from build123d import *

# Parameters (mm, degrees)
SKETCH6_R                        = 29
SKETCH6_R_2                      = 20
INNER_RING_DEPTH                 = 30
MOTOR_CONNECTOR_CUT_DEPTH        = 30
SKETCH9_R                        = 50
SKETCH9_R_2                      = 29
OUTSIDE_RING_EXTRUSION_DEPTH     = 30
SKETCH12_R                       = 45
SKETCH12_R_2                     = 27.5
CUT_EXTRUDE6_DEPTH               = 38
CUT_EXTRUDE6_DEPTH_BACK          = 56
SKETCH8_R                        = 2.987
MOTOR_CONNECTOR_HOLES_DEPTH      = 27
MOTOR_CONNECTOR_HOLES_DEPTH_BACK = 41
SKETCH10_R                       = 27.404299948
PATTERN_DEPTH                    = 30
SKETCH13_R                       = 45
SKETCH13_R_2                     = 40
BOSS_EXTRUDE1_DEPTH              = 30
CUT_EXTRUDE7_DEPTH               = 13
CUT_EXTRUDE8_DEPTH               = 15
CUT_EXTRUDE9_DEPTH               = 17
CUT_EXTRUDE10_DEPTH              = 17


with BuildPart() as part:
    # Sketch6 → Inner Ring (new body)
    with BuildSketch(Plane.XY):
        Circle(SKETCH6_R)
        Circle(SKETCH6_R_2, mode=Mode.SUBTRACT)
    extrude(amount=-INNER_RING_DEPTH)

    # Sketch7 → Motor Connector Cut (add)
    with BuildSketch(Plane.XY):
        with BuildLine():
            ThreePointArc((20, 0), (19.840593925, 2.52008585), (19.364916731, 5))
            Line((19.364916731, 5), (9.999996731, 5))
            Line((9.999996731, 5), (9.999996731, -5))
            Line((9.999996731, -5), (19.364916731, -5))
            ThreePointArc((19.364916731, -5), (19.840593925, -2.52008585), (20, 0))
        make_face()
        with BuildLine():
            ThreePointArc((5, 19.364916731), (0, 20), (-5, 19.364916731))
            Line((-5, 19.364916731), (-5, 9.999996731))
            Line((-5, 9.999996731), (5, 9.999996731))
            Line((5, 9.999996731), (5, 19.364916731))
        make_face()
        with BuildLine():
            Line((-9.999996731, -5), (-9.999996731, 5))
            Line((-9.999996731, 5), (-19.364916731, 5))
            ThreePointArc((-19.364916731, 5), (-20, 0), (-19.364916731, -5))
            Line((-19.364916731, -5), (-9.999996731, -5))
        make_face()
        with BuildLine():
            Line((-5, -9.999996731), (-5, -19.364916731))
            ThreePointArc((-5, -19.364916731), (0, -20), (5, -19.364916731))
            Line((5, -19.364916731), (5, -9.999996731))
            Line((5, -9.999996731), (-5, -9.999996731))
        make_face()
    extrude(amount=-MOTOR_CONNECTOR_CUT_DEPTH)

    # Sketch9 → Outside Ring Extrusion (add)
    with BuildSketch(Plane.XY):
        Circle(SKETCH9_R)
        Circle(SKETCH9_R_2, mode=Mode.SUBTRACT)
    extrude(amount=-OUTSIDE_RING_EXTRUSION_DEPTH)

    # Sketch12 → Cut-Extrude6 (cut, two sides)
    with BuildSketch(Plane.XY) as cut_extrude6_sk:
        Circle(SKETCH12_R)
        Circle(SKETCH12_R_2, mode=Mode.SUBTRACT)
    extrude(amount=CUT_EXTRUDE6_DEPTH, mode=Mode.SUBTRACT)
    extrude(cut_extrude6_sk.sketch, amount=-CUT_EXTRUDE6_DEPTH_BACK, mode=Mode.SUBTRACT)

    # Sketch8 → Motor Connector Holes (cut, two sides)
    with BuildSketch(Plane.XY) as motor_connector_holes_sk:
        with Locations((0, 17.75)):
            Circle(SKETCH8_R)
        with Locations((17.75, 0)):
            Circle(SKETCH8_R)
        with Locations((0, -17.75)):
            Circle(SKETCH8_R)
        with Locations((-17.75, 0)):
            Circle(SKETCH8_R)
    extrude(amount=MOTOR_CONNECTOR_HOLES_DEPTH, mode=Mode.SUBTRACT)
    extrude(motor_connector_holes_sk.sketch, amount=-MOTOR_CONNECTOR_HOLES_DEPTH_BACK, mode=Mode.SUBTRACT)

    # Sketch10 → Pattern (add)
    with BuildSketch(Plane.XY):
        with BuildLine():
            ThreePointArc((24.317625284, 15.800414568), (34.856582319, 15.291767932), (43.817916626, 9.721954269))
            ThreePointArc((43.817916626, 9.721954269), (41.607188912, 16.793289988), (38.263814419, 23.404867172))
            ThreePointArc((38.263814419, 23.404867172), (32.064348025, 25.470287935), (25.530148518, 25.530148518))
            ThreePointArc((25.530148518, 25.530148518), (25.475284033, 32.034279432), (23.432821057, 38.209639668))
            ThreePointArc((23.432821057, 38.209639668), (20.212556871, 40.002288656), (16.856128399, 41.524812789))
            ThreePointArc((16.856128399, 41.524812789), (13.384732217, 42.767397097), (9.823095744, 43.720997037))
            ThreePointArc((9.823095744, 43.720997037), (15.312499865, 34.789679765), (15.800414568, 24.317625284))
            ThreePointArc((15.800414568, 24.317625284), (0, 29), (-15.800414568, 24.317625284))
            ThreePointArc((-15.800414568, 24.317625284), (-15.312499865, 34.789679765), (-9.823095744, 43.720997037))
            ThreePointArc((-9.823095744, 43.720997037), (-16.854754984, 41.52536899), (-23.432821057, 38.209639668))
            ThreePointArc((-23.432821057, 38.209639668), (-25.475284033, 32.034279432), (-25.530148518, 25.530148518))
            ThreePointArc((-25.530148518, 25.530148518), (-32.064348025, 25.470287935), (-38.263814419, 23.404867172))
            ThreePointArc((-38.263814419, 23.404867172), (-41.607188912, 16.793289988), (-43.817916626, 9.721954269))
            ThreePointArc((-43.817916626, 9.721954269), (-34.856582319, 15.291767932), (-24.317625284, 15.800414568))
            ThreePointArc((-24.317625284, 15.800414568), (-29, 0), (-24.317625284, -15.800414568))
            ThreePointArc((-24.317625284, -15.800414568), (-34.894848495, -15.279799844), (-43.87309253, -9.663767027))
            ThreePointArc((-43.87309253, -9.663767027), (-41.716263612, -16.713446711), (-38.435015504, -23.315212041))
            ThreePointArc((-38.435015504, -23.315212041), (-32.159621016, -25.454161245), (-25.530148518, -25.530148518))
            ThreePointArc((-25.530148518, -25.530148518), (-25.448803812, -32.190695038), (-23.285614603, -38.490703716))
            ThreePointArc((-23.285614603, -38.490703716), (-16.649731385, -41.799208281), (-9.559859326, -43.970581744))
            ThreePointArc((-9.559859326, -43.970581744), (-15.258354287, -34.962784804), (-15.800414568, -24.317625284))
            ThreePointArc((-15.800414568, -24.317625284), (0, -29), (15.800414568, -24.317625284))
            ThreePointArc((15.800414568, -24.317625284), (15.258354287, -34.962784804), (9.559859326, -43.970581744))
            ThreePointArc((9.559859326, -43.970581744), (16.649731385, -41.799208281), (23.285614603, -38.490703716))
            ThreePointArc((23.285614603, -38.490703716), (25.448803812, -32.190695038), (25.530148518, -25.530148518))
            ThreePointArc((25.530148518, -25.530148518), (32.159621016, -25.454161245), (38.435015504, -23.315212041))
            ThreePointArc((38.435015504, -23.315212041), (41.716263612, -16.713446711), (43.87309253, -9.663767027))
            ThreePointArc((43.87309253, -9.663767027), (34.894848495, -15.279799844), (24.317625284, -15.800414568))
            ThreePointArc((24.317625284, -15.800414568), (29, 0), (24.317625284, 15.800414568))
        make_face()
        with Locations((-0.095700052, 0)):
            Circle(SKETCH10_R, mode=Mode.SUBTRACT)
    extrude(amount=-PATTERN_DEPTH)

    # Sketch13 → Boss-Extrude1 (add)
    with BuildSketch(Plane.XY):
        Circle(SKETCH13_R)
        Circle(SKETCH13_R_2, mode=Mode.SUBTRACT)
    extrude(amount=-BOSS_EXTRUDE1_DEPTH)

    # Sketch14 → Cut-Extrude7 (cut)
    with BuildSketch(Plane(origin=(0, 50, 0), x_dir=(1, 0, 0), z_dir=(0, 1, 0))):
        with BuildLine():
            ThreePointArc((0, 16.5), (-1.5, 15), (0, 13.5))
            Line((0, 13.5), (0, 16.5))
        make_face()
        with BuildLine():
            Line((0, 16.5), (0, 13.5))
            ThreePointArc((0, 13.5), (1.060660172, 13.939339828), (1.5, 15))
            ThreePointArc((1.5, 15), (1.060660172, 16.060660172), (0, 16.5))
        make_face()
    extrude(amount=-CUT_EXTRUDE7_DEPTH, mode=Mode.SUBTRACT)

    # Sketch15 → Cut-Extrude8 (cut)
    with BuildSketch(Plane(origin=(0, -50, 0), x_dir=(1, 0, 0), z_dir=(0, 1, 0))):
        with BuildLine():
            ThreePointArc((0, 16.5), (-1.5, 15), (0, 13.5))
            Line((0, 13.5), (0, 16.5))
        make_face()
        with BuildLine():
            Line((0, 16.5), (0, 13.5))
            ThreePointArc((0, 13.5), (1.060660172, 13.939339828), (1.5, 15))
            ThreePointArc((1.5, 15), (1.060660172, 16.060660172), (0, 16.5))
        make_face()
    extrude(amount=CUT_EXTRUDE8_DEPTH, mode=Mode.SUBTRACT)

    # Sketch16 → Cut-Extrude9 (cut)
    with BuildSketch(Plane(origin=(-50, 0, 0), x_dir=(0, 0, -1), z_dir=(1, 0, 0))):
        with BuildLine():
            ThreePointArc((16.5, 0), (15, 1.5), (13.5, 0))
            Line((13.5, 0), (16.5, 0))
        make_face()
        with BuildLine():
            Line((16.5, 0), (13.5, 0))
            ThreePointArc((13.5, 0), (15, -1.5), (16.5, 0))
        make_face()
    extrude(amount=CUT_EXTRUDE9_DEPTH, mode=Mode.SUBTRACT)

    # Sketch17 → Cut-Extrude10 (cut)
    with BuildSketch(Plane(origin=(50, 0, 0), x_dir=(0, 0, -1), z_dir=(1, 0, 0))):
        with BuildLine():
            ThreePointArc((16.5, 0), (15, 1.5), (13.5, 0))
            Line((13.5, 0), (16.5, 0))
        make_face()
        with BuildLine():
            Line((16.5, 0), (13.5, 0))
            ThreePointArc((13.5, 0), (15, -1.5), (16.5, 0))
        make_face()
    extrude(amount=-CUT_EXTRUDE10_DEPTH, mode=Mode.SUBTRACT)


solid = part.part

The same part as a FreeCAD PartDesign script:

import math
import FreeCAD as App
import Part
import Sketcher

doc = App.newDocument("Part")
body = doc.addObject("PartDesign::Body", "Body")
body.AllowCompound = True

# Sketch on XY plane
sketch1 = doc.addObject("Sketcher::SketchObject", "Sketch")
body.addObject(sketch1)
sketch1.AttachmentSupport = (doc.XY_Plane, [""])
sketch1.MapMode = "FlatFace"
sketch1.addGeometry([
    Part.Circle(App.Vector(0, 0, 0), App.Vector(0, 0, 1), 29),
    Part.Circle(App.Vector(0, 0, 0), App.Vector(0, 0, 1), 20),
], False)
sketch1.addConstraint([
    Sketcher.Constraint("Coincident", 0, 3, -1, 1),
    Sketcher.Constraint("Coincident", 1, 3, -1, 1),
    Sketcher.Constraint("Diameter", 0, 58.0),
    Sketcher.Constraint("Diameter", 1, 40.0),
])
pad1 = doc.addObject("PartDesign::Pad", "Pad")
body.addObject(pad1)
pad1.Profile = sketch1
pad1.Length = 30
pad1.Reversed = True

# Sketch on XY plane
sketch2 = doc.addObject("Sketcher::SketchObject", "Sketch001")
body.addObject(sketch2)
sketch2.AttachmentSupport = (doc.XY_Plane, [""])
sketch2.MapMode = "FlatFace"
sketch2.addGeometry([
    Part.ArcOfCircle(Part.Circle(App.Vector(0, 0, 0), App.Vector(0, 0, 1), 20), math.radians(0), math.radians(14.477512)),  # 0
    Part.LineSegment(App.Vector(19.364917, 5, 0), App.Vector(9.999997, 5, 0)),  # 1
    Part.LineSegment(App.Vector(9.999997, 5, 0), App.Vector(9.999997, -5, 0)),  # 2
    Part.LineSegment(App.Vector(9.999997, -5, 0), App.Vector(19.364917, -5, 0)),  # 3
    Part.ArcOfCircle(Part.Circle(App.Vector(0, 0, 0), App.Vector(0, 0, 1), 20), math.radians(-14.477512), math.radians(0)),  # 4
    Part.ArcOfCircle(Part.Circle(App.Vector(0, 0, 0), App.Vector(0, 0, 1), 20), math.radians(75.522488), math.radians(104.477512)),  # 5
    Part.LineSegment(App.Vector(-5, 19.364917, 0), App.Vector(-5, 9.999997, 0)),  # 6
    Part.LineSegment(App.Vector(-5, 9.999997, 0), App.Vector(5, 9.999997, 0)),  # 7
    Part.LineSegment(App.Vector(5, 9.999997, 0), App.Vector(5, 19.364917, 0)),  # 8
    Part.LineSegment(App.Vector(-9.999997, -5, 0), App.Vector(-9.999997, 5, 0)),  # 9
    Part.LineSegment(App.Vector(-9.999997, 5, 0), App.Vector(-19.364917, 5, 0)),  # 10
    Part.ArcOfCircle(Part.Circle(App.Vector(0, 0, 0), App.Vector(0, 0, 1), 20), math.radians(165.522488), math.radians(194.477512)),  # 11
    Part.LineSegment(App.Vector(-19.364917, -5, 0), App.Vector(-9.999997, -5, 0)),  # 12
    Part.LineSegment(App.Vector(-5, -9.999997, 0), App.Vector(-5, -19.364917, 0)),  # 13
    Part.ArcOfCircle(Part.Circle(App.Vector(0, 0, 0), App.Vector(0, 0, 1), 20), math.radians(-104.477512), math.radians(-75.522488)),  # 14
    Part.LineSegment(App.Vector(5, -19.364917, 0), App.Vector(5, -9.999997, 0)),  # 15
    Part.LineSegment(App.Vector(5, -9.999997, 0), App.Vector(-5, -9.999997, 0)),  # 16
], False)
sketch2.addConstraint([
    Sketcher.Constraint("Coincident", 0, 2, 1, 1),
    Sketcher.Constraint("Coincident", 1, 2, 2, 1),
    Sketcher.Constraint("Coincident", 2, 2, 3, 1),
    Sketcher.Constraint("Coincident", 3, 2, 4, 1),
    Sketcher.Constraint("Tangent", 4, 2, 0, 1),
    Sketcher.Constraint("Coincident", 5, 2, 6, 1),
    Sketcher.Constraint("Coincident", 6, 2, 7, 1),
    Sketcher.Constraint("Coincident", 7, 2, 8, 1),
    Sketcher.Constraint("Coincident", 8, 2, 5, 1),
    Sketcher.Constraint("Coincident", 9, 2, 10, 1),
    Sketcher.Constraint("Coincident", 10, 2, 11, 1),
    Sketcher.Constraint("Coincident", 11, 2, 12, 1),
    Sketcher.Constraint("Coincident", 12, 2, 9, 1),
    Sketcher.Constraint("Coincident", 13, 2, 14, 1),
    Sketcher.Constraint("Coincident", 14, 2, 15, 1),
    Sketcher.Constraint("Coincident", 15, 2, 16, 1),
    Sketcher.Constraint("Coincident", 16, 2, 13, 1),
    Sketcher.Constraint("Horizontal", 1),
    Sketcher.Constraint("Vertical", 2),
    Sketcher.Constraint("Horizontal", 3),
    Sketcher.Constraint("Vertical", 6),
    Sketcher.Constraint("Horizontal", 7),
    Sketcher.Constraint("Vertical", 8),
    Sketcher.Constraint("Vertical", 9),
    Sketcher.Constraint("Horizontal", 10),
    Sketcher.Constraint("Horizontal", 12),
    Sketcher.Constraint("Vertical", 13),
    Sketcher.Constraint("Vertical", 15),
    Sketcher.Constraint("Horizontal", 16),
    Sketcher.Constraint("Coincident", 0, 3, -1, 1),
    Sketcher.Constraint("Coincident", 5, 3, -1, 1),
    Sketcher.Constraint("Coincident", 11, 3, -1, 1),
    Sketcher.Constraint("Coincident", 14, 3, -1, 1),
    Sketcher.Constraint("Equal", 0, 4),
    Sketcher.Constraint("Equal", 4, 5),
    Sketcher.Constraint("Equal", 5, 11),
    Sketcher.Constraint("Equal", 11, 14),
    Sketcher.Constraint("Symmetric", 2, 2, 9, 2, -1, 1),
    Sketcher.Constraint("Symmetric", 6, 2, 15, 2, -1, 1),
    Sketcher.Constraint("PointOnObject", 4, 2, -1),
    Sketcher.Constraint("Horizontal", 5, 2, 8, 2),
    Sketcher.Constraint("Horizontal", 1, 2, 9, 2),
    Sketcher.Constraint("Horizontal", 3, 2, 11, 2),
    Sketcher.Constraint("Horizontal", 13, 2, 14, 2),
    Sketcher.Constraint("Equal", 16, 2),
    Sketcher.Constraint("Equal", 12, 6),
    Sketcher.Constraint("Radius", 0, 20.0),
    Sketcher.Constraint("DistanceX", 7, 1, 7, 2, 10.0),
    Sketcher.Constraint("DistanceX", 1, 2, 1, 1, 9.36492),
])
pad2 = doc.addObject("PartDesign::Pad", "Pad001")
body.addObject(pad2)
pad2.Profile = sketch2
pad2.Length = 30
pad2.Reversed = True

# Sketch on XY plane
sketch3 = doc.addObject("Sketcher::SketchObject", "Sketch002")
body.addObject(sketch3)
sketch3.AttachmentSupport = (doc.XY_Plane, [""])
sketch3.MapMode = "FlatFace"
sketch3.addGeometry([
    Part.Circle(App.Vector(0, 0, 0), App.Vector(0, 0, 1), 50),
    Part.Circle(App.Vector(0, 0, 0), App.Vector(0, 0, 1), 29),
], False)
sketch3.addConstraint([
    Sketcher.Constraint("Coincident", 0, 3, -1, 1),
    Sketcher.Constraint("Coincident", 1, 3, -1, 1),
    Sketcher.Constraint("Diameter", 0, 100.0),
    Sketcher.Constraint("Diameter", 1, 58.0),
])
pad3 = doc.addObject("PartDesign::Pad", "Pad002")
body.addObject(pad3)
pad3.Profile = sketch3
pad3.Length = 30
pad3.Reversed = True

# Sketch on XY plane
sketch4 = doc.addObject("Sketcher::SketchObject", "Sketch003")
body.addObject(sketch4)
sketch4.AttachmentSupport = (doc.XY_Plane, [""])
sketch4.MapMode = "FlatFace"
sketch4.addGeometry([
    Part.Circle(App.Vector(0, 0, 0), App.Vector(0, 0, 1), 45),
    Part.Circle(App.Vector(0, 0, 0), App.Vector(0, 0, 1), 27.5),
], False)
sketch4.addConstraint([
    Sketcher.Constraint("Coincident", 0, 3, -1, 1),
    Sketcher.Constraint("Coincident", 1, 3, -1, 1),
    Sketcher.Constraint("Diameter", 0, 90.0),
    Sketcher.Constraint("Diameter", 1, 55.0),
])
pocket1 = doc.addObject("PartDesign::Pocket", "Pocket")
body.addObject(pocket1)
pocket1.Profile = sketch4
pocket1.Type = "ThroughAll"
pocket1.Midplane = True

# Sketch on XY plane
sketch5 = doc.addObject("Sketcher::SketchObject", "Sketch004")
body.addObject(sketch5)
sketch5.AttachmentSupport = (doc.XY_Plane, [""])
sketch5.MapMode = "FlatFace"
sketch5.addGeometry([
    Part.Circle(App.Vector(0, 17.75, 0), App.Vector(0, 0, 1), 2.987),
    Part.Circle(App.Vector(17.75, 0, 0), App.Vector(0, 0, 1), 2.987),
    Part.Circle(App.Vector(0, -17.75, 0), App.Vector(0, 0, 1), 2.987),
    Part.Circle(App.Vector(-17.75, 0, 0), App.Vector(0, 0, 1), 2.987),
], False)
sketch5.addConstraint([
    Sketcher.Constraint("Equal", 0, 1),
    Sketcher.Constraint("Equal", 1, 2),
    Sketcher.Constraint("Equal", 2, 3),
    Sketcher.Constraint("Symmetric", 0, 3, 2, 3, -1, 1),
    Sketcher.Constraint("Symmetric", 1, 3, 3, 3, -1, 1),
    Sketcher.Constraint("PointOnObject", 0, 3, -2),
    Sketcher.Constraint("PointOnObject", 1, 3, -1),
    Sketcher.Constraint("Diameter", 0, 5.974),
    Sketcher.Constraint("DistanceY", 2, 3, 0, 3, 35.5),
    Sketcher.Constraint("DistanceX", 3, 3, 1, 3, 35.5),
])
pocket2 = doc.addObject("PartDesign::Pocket", "Pocket001")
body.addObject(pocket2)
pocket2.Profile = sketch5
pocket2.Type = "ThroughAll"
pocket2.Midplane = True

# Sketch on XY plane
sketch6 = doc.addObject("Sketcher::SketchObject", "Sketch005")
body.addObject(sketch6)
sketch6.AttachmentSupport = (doc.XY_Plane, [""])
sketch6.MapMode = "FlatFace"
sketch6.addGeometry([
    Part.ArcOfCircle(Part.Circle(App.Vector(28.607215, -4.756808, 0), App.Vector(0, 0, 1), 21), math.radians(43.587765), math.radians(101.786546)),  # 0
    Part.ArcOfCircle(Part.Circle(App.Vector(0, -0.0957, 0), App.Vector(0, 0, 1), 44.9043), math.radians(12.628876), math.radians(31.557085)),  # 1
    Part.ArcOfCircle(Part.Circle(App.Vector(28.607215, 4.756808, 0), App.Vector(0, 0, 1), 21), math.radians(62.623342), math.radians(98.425714)),  # 2
    Part.ArcOfCircle(Part.Circle(App.Vector(4.756808, 28.607215, 0), App.Vector(0, 0, 1), 21), math.radians(-8.425714), math.radians(27.210331)),  # 3
    Part.ArcOfCircle(Part.Circle(App.Vector(0, -0.0957, 0), App.Vector(0, 0, 1), 44.9043), math.radians(58.544302), math.radians(67.952265)),  # 4
    Part.ArcOfCircle(Part.Circle(App.Vector(0, -0.0957, 0), App.Vector(0, 0, 1), 44.9043), math.radians(67.952265), math.radians(77.364009)),  # 5
    Part.ArcOfCircle(Part.Circle(App.Vector(-4.756808, 28.607215, 0), App.Vector(0, 0, 1), 21), math.radians(-11.786546), math.radians(46.030038)),  # 6
    Part.ArcOfCircle(Part.Circle(App.Vector(0, 0, 0), App.Vector(0, 0, 1), 29), math.radians(56.986141), math.radians(123.013859)),  # 7
    Part.ArcOfCircle(Part.Circle(App.Vector(4.756808, 28.607215, 0), App.Vector(0, 0, 1), 21), math.radians(133.969962), math.radians(191.786546)),  # 8
    Part.ArcOfCircle(Part.Circle(App.Vector(0, -0.0957, 0), App.Vector(0, 0, 1), 44.9043), math.radians(102.635991), math.radians(121.455698)),  # 9
    Part.ArcOfCircle(Part.Circle(App.Vector(-4.756808, 28.607215, 0), App.Vector(0, 0, 1), 21), math.radians(152.789669), math.radians(188.425714)),  # 10
    Part.ArcOfCircle(Part.Circle(App.Vector(-28.607215, 4.756808, 0), App.Vector(0, 0, 1), 21), math.radians(81.574286), math.radians(117.376658)),  # 11
    Part.ArcOfCircle(Part.Circle(App.Vector(0, -0.0957, 0), App.Vector(0, 0, 1), 44.9043), math.radians(148.442915), math.radians(167.371124)),  # 12
    Part.ArcOfCircle(Part.Circle(App.Vector(-28.607215, -4.756808, 0), App.Vector(0, 0, 1), 21), math.radians(78.213454), math.radians(136.412235)),  # 13
    Part.ArcOfCircle(Part.Circle(App.Vector(0, 0, 0), App.Vector(0, 0, 1), 29), math.radians(146.986141), math.radians(213.013859)),  # 14
    Part.ArcOfCircle(Part.Circle(App.Vector(-28.607215, 4.756808, 0), App.Vector(0, 0, 1), 21), math.radians(-136.631018), math.radians(-78.213454)),  # 15
    Part.ArcOfCircle(Part.Circle(App.Vector(0, -0.0957, 0), App.Vector(0, 0, 1), 44.9043), math.radians(-167.697275), math.radians(-148.862822)),  # 16
    Part.ArcOfCircle(Part.Circle(App.Vector(-28.607215, -4.756808, 0), App.Vector(0, 0, 1), 21), math.radians(-117.903933), math.radians(-81.574286)),  # 17
    Part.ArcOfCircle(Part.Circle(App.Vector(-4.756808, -28.607215, 0), App.Vector(0, 0, 1), 21), math.radians(171.574286), math.radians(208.075998)),  # 18
    Part.ArcOfCircle(Part.Circle(App.Vector(0, -0.0957, 0), App.Vector(0, 0, 1), 44.9043), math.radians(-121.23577), math.radians(-102.292006)),  # 19
    Part.ArcOfCircle(Part.Circle(App.Vector(4.756808, -28.607215, 0), App.Vector(0, 0, 1), 21), math.radians(168.213454), math.radians(227.019761)),  # 20
    Part.ArcOfCircle(Part.Circle(App.Vector(0, 0, 0), App.Vector(0, 0, 1), 29), math.radians(-123.013859), math.radians(-56.986141)),  # 21
    Part.ArcOfCircle(Part.Circle(App.Vector(-4.756808, -28.607215, 0), App.Vector(0, 0, 1), 21), math.radians(-47.019761), math.radians(11.786546)),  # 22
    Part.ArcOfCircle(Part.Circle(App.Vector(0, -0.0957, 0), App.Vector(0, 0, 1), 44.9043), math.radians(-77.707994), math.radians(-58.76423)),  # 23
    Part.ArcOfCircle(Part.Circle(App.Vector(4.756808, -28.607215, 0), App.Vector(0, 0, 1), 21), math.radians(-28.075998), math.radians(8.425714)),  # 24
    Part.ArcOfCircle(Part.Circle(App.Vector(28.607215, -4.756808, 0), App.Vector(0, 0, 1), 21), math.radians(-98.425714), math.radians(-62.096067)),  # 25
    Part.ArcOfCircle(Part.Circle(App.Vector(0, -0.0957, 0), App.Vector(0, 0, 1), 44.9043), math.radians(-31.137178), math.radians(-12.302725)),  # 26
    Part.ArcOfCircle(Part.Circle(App.Vector(28.607215, 4.756808, 0), App.Vector(0, 0, 1), 21), math.radians(-101.786546), math.radians(-43.368982)),  # 27
    Part.ArcOfCircle(Part.Circle(App.Vector(0, 0, 0), App.Vector(0, 0, 1), 29), math.radians(-33.013859), math.radians(33.013859)),  # 28
    Part.Circle(App.Vector(-0.0957, 0, 0), App.Vector(0, 0, 1), 27.4043),  # 29
], False)
sketch6.addConstraint([
    Sketcher.Constraint("Coincident", 0, 1, 1, 1),
    Sketcher.Constraint("Coincident", 1, 2, 2, 1),
    Sketcher.Constraint("Coincident", 2, 2, 3, 1),
    Sketcher.Constraint("Coincident", 3, 2, 4, 1),
    Sketcher.Constraint("Tangent", 4, 2, 5, 1),
    Sketcher.Constraint("Coincident", 5, 2, 6, 2),
    Sketcher.Constraint("Coincident", 6, 1, 7, 1),
    Sketcher.Constraint("Coincident", 7, 2, 8, 2),
    Sketcher.Constraint("Coincident", 8, 1, 9, 1),
    Sketcher.Constraint("Coincident", 9, 2, 10, 1),
    Sketcher.Constraint("Coincident", 10, 2, 11, 1),
    Sketcher.Constraint("Coincident", 11, 2, 12, 1),
    Sketcher.Constraint("Coincident", 12, 2, 13, 2),
    Sketcher.Constraint("Coincident", 13, 1, 14, 1),
    Sketcher.Constraint("Coincident", 14, 2, 15, 2),
    Sketcher.Constraint("Coincident", 15, 1, 16, 1),
    Sketcher.Constraint("Coincident", 16, 2, 17, 1),
    Sketcher.Constraint("Coincident", 17, 2, 18, 1),
    Sketcher.Constraint("Coincident", 18, 2, 19, 1),
    Sketcher.Constraint("Coincident", 19, 2, 20, 2),
    Sketcher.Constraint("Coincident", 20, 1, 21, 1),
    Sketcher.Constraint("Coincident", 21, 2, 22, 2),
    Sketcher.Constraint("Coincident", 22, 1, 23, 1),
    Sketcher.Constraint("Coincident", 23, 2, 24, 1),
    Sketcher.Constraint("Coincident", 24, 2, 25, 1),
    Sketcher.Constraint("Coincident", 25, 2, 26, 1),
    Sketcher.Constraint("Coincident", 26, 2, 27, 2),
    Sketcher.Constraint("Coincident", 27, 1, 28, 1),
    Sketcher.Constraint("Coincident", 28, 2, 0, 2),
    Sketcher.Constraint("Coincident", 7, 3, -1, 1),
    Sketcher.Constraint("Coincident", 14, 3, -1, 1),
    Sketcher.Constraint("Coincident", 21, 3, -1, 1),
    Sketcher.Constraint("Coincident", 28, 3, -1, 1),
    Sketcher.Constraint("Coincident", 4, 3, 1, 3),
    Sketcher.Constraint("Coincident", 8, 3, 3, 3),
    Sketcher.Constraint("Coincident", 9, 3, 1, 3),
    Sketcher.Constraint("Coincident", 10, 3, 6, 3),
    Sketcher.Constraint("Coincident", 12, 3, 1, 3),
    Sketcher.Constraint("Coincident", 15, 3, 11, 3),
    Sketcher.Constraint("Coincident", 16, 3, 1, 3),
    Sketcher.Constraint("Coincident", 17, 3, 13, 3),
    Sketcher.Constraint("Coincident", 19, 3, 1, 3),
    Sketcher.Constraint("Coincident", 22, 3, 18, 3),
    Sketcher.Constraint("Coincident", 23, 3, 1, 3),
    Sketcher.Constraint("Coincident", 24, 3, 20, 3),
    Sketcher.Constraint("Coincident", 25, 3, 0, 3),
    Sketcher.Constraint("Coincident", 26, 3, 1, 3),
    Sketcher.Constraint("Coincident", 27, 3, 2, 3),
    Sketcher.Constraint("Equal", 0, 2),
    Sketcher.Constraint("Equal", 2, 3),
    Sketcher.Constraint("Equal", 1, 4),
    Sketcher.Constraint("Equal", 4, 5),
    Sketcher.Constraint("Equal", 3, 6),
    Sketcher.Constraint("Equal", 6, 8),
    Sketcher.Constraint("Equal", 5, 9),
    Sketcher.Constraint("Equal", 8, 10),
    Sketcher.Constraint("Equal", 10, 11),
    Sketcher.Constraint("Equal", 9, 12),
    Sketcher.Constraint("Equal", 11, 13),
    Sketcher.Constraint("Equal", 7, 14),
    Sketcher.Constraint("Equal", 13, 15),
    Sketcher.Constraint("Equal", 12, 16),
    Sketcher.Constraint("Equal", 15, 17),
    Sketcher.Constraint("Equal", 17, 18),
    Sketcher.Constraint("Equal", 16, 19),
    Sketcher.Constraint("Equal", 18, 20),
    Sketcher.Constraint("Equal", 14, 21),
    Sketcher.Constraint("Equal", 20, 22),
    Sketcher.Constraint("Equal", 19, 23),
    Sketcher.Constraint("Equal", 22, 24),
    Sketcher.Constraint("Equal", 24, 25),
    Sketcher.Constraint("Equal", 23, 26),
    Sketcher.Constraint("Equal", 25, 27),
    Sketcher.Constraint("Equal", 21, 28),
    Sketcher.Constraint("Symmetric", 0, 3, 11, 3, -1, 1),
    Sketcher.Constraint("Symmetric", 2, 3, 13, 3, -1, 1),
    Sketcher.Constraint("Symmetric", 3, 3, 18, 3, -1, 1),
    Sketcher.Constraint("Symmetric", 6, 3, 20, 3, -1, 1),
    Sketcher.Constraint("Symmetric", 3, 3, 6, 3, -2),
    Sketcher.Constraint("Symmetric", 2, 3, 11, 3, -2),
    Sketcher.Constraint("PointOnObject", 1, 3, -2),
    Sketcher.Constraint("PointOnObject", 29, 3, -1),
    Sketcher.Constraint("Radius", 0, 21.0),
    Sketcher.Constraint("Radius", 7, 29.0),
    Sketcher.Constraint("Diameter", 29, 54.8086),
    Sketcher.Constraint("Radius", 1, 44.9043),
    Sketcher.Constraint("DistanceY", 1, 3, -1, 1, 0.0957),
    Sketcher.Constraint("DistanceX", 29, 3, -1, 1, 0.0957),
    Sketcher.Constraint("DistanceX", 27, 3, 0, 1, 15.210701),
    Sketcher.Constraint("DistanceX", 2, 3, 1, 2, 9.656599),
    Sketcher.Constraint("DistanceX", 11, 3, 7, 2, 12.806801),
    Sketcher.Constraint("DistanceY", 22, 3, 14, 2, 12.806801),
    Sketcher.Constraint("DistanceX", -1, 1, 4, 2, 16.856128),
])
pad4 = doc.addObject("PartDesign::Pad", "Pad003")
body.addObject(pad4)
pad4.Profile = sketch6
pad4.Length = 30
pad4.Reversed = True

# Sketch on XY plane
sketch7 = doc.addObject("Sketcher::SketchObject", "Sketch006")
body.addObject(sketch7)
sketch7.AttachmentSupport = (doc.XY_Plane, [""])
sketch7.MapMode = "FlatFace"
sketch7.addGeometry([
    Part.Circle(App.Vector(0, 0, 0), App.Vector(0, 0, 1), 45),
    Part.Circle(App.Vector(0, 0, 0), App.Vector(0, 0, 1), 40),
], False)
sketch7.addConstraint([
    Sketcher.Constraint("Coincident", 0, 3, -1, 1),
    Sketcher.Constraint("Coincident", 1, 3, -1, 1),
    Sketcher.Constraint("Diameter", 0, 90.0),
    Sketcher.Constraint("Diameter", 1, 80.0),
])
pad5 = doc.addObject("PartDesign::Pad", "Pad004")
body.addObject(pad5)
pad5.Profile = sketch7
pad5.Length = 30
pad5.Reversed = True

# Sketch on XZ plane
sketch8 = doc.addObject("Sketcher::SketchObject", "Sketch007")
body.addObject(sketch8)
sketch8.AttachmentSupport = (doc.XZ_Plane, [""])
sketch8.MapMode = "FlatFace"
sketch8.AttachmentOffset = App.Placement(App.Vector(0, 0, -50), App.Rotation())
sketch8.addGeometry([
    Part.ArcOfCircle(Part.Circle(App.Vector(0, -15, 0), App.Vector(0, 0, 1), 1.5), math.radians(90), math.radians(270)),
    Part.ArcOfCircle(Part.Circle(App.Vector(0, -15, 0), App.Vector(0, 0, 1), 1.5), math.radians(0), math.radians(90)),
    Part.ArcOfCircle(Part.Circle(App.Vector(0, -15, 0), App.Vector(0, 0, 1), 1.5), math.radians(-90), math.radians(0)),
], False)
sketch8.addConstraint([
    Sketcher.Constraint("Tangent", 0, 1, 1, 2),
    Sketcher.Constraint("Tangent", 1, 1, 2, 2),
    Sketcher.Constraint("Tangent", 2, 1, 0, 2),
    Sketcher.Constraint("PointOnObject", 0, 3, -2),
    Sketcher.Constraint("PointOnObject", 0, 1, -2),
    Sketcher.Constraint("PointOnObject", 2, 1, -2),
    Sketcher.Constraint("Horizontal", 2, 3, 1, 1),
    Sketcher.Constraint("Radius", 0, 1.5),
    Sketcher.Constraint("DistanceY", 0, 3, -1, 1, 15.0),
])
pocket3 = doc.addObject("PartDesign::Pocket", "Pocket002")
body.addObject(pocket3)
pocket3.Profile = sketch8
pocket3.Length = 13
pocket3.Reversed = True

# Sketch on XZ plane
sketch9 = doc.addObject("Sketcher::SketchObject", "Sketch008")
body.addObject(sketch9)
sketch9.AttachmentSupport = (doc.XZ_Plane, [""])
sketch9.MapMode = "FlatFace"
sketch9.AttachmentOffset = App.Placement(App.Vector(0, 0, 50), App.Rotation())
sketch9.addGeometry([
    Part.ArcOfCircle(Part.Circle(App.Vector(0, -15, 0), App.Vector(0, 0, 1), 1.5), math.radians(90), math.radians(270)),
    Part.ArcOfCircle(Part.Circle(App.Vector(0, -15, 0), App.Vector(0, 0, 1), 1.5), math.radians(0), math.radians(90)),
    Part.ArcOfCircle(Part.Circle(App.Vector(0, -15, 0), App.Vector(0, 0, 1), 1.5), math.radians(-90), math.radians(0)),
], False)
sketch9.addConstraint([
    Sketcher.Constraint("Tangent", 0, 1, 1, 2),
    Sketcher.Constraint("Tangent", 1, 1, 2, 2),
    Sketcher.Constraint("Tangent", 2, 1, 0, 2),
    Sketcher.Constraint("PointOnObject", 0, 3, -2),
    Sketcher.Constraint("PointOnObject", 0, 1, -2),
    Sketcher.Constraint("PointOnObject", 2, 1, -2),
    Sketcher.Constraint("Horizontal", 2, 3, 1, 1),
    Sketcher.Constraint("Radius", 0, 1.5),
    Sketcher.Constraint("DistanceY", 0, 3, -1, 1, 15.0),
])
pocket4 = doc.addObject("PartDesign::Pocket", "Pocket003")
body.addObject(pocket4)
pocket4.Profile = sketch9
pocket4.Length = 15

# Sketch on YZ plane
sketch10 = doc.addObject("Sketcher::SketchObject", "Sketch009")
body.addObject(sketch10)
sketch10.AttachmentSupport = (doc.YZ_Plane, [""])
sketch10.MapMode = "FlatFace"
sketch10.AttachmentOffset = App.Placement(App.Vector(0, 0, -50), App.Rotation())
sketch10.addGeometry(Part.Circle(App.Vector(0, -15, 0), App.Vector(0, 0, 1), 1.5), False)
sketch10.addConstraint([
    Sketcher.Constraint("PointOnObject", 0, 3, -2),
    Sketcher.Constraint("Diameter", 0, 3.0),
    Sketcher.Constraint("DistanceY", 0, 3, -1, 1, 15.0),
])
pocket5 = doc.addObject("PartDesign::Pocket", "Pocket004")
body.addObject(pocket5)
pocket5.Profile = sketch10
pocket5.Length = 17
pocket5.Reversed = True

# Sketch on YZ plane
sketch11 = doc.addObject("Sketcher::SketchObject", "Sketch010")
body.addObject(sketch11)
sketch11.AttachmentSupport = (doc.YZ_Plane, [""])
sketch11.MapMode = "FlatFace"
sketch11.AttachmentOffset = App.Placement(App.Vector(0, 0, 50), App.Rotation())
sketch11.addGeometry(Part.Circle(App.Vector(0, -15, 0), App.Vector(0, 0, 1), 1.5), False)
sketch11.addConstraint([
    Sketcher.Constraint("PointOnObject", 0, 3, -2),
    Sketcher.Constraint("Diameter", 0, 3.0),
    Sketcher.Constraint("DistanceY", 0, 3, -1, 1, 15.0),
])
pocket6 = doc.addObject("PartDesign::Pocket", "Pocket005")
body.addObject(pocket6)
pocket6.Profile = sketch11
pocket6.Length = 17

doc.recompute()
